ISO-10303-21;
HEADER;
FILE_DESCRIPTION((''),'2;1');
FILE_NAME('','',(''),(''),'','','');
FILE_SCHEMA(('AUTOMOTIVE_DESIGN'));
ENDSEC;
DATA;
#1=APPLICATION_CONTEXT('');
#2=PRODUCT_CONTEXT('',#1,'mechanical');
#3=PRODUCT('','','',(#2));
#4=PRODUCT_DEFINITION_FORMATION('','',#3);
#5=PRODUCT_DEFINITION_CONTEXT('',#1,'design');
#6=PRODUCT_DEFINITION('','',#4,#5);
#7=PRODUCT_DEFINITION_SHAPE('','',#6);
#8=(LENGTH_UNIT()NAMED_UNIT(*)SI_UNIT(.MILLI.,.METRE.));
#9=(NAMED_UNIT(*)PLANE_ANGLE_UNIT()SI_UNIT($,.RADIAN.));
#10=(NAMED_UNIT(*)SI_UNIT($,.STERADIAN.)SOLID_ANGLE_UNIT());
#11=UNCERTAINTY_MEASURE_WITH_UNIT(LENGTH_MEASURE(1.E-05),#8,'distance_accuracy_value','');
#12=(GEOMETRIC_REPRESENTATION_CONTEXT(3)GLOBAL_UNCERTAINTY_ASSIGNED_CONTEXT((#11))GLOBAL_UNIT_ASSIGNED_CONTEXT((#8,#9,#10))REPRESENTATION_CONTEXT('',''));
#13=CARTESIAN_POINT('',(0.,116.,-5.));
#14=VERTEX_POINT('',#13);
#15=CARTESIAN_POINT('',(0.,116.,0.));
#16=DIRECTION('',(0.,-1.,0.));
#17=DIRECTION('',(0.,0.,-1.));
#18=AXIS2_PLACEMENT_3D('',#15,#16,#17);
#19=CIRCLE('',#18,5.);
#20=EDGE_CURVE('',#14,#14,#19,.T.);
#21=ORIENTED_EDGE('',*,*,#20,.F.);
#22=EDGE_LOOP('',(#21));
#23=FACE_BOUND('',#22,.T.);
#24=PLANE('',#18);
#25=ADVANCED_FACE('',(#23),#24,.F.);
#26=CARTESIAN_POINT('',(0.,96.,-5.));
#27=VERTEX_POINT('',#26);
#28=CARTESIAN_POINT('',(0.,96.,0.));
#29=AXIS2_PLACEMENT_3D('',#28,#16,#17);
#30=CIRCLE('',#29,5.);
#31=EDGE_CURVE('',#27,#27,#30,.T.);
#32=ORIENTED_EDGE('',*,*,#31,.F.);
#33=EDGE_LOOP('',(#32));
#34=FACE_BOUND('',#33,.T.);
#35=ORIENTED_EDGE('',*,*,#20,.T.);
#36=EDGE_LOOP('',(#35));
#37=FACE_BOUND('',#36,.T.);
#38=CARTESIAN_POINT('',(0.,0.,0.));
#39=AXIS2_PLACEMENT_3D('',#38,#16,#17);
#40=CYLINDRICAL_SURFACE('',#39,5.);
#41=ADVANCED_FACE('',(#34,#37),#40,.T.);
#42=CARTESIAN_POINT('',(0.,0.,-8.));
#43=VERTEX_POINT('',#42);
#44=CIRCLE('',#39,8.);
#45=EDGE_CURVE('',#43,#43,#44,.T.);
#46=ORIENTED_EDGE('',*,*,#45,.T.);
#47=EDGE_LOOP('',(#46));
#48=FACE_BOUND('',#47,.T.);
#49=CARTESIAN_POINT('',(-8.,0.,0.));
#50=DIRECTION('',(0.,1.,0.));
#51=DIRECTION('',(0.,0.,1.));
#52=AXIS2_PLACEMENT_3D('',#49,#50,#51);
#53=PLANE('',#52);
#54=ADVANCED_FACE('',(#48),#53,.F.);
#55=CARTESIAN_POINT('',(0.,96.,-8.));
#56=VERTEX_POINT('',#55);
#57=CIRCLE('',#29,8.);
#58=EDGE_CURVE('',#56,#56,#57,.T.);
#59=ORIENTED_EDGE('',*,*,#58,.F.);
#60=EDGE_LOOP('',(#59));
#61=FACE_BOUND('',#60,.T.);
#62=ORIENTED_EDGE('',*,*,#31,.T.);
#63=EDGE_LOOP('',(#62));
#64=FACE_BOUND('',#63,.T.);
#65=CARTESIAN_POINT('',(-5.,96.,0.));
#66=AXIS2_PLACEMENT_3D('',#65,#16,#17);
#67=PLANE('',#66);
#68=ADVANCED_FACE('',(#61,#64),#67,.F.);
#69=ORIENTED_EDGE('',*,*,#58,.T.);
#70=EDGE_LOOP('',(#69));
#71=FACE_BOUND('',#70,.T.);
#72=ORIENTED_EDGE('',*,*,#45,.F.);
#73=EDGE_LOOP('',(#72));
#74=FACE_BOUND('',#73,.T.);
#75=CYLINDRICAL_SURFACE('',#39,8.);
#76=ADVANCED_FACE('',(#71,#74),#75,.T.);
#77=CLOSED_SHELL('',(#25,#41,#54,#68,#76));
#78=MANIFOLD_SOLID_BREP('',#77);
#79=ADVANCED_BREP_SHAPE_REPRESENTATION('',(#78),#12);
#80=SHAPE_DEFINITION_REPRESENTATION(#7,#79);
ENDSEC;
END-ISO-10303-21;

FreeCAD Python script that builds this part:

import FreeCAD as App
import Part
import Sketcher
Q = App.Units.Quantity

doc = App.newDocument("Part")
params = doc.addObject("Spreadsheet::Sheet", "Params")
for row, (alias, value) in enumerate([
    ("sketch1_width", "5 mm"),
    ("sketch1_width2", "3 mm"),
    ("sketch1_height", "116 mm"),
    ("sketch1_height2", "20 mm"),
    ("revolution_angle", "360 deg"),
], start=1):
    params.set(f"A{row}", alias)
    params.set(f"B{row}", "=" + value)
    params.setAlias(f"B{row}", alias)

body = doc.addObject("PartDesign::Body", "Body")

# Sketch on XY plane
sketch1 = doc.addObject("Sketcher::SketchObject", "Sketch")
body.addObject(sketch1)
sketch1.AttachmentSupport = (doc.XY_Plane, [""])
sketch1.MapMode = "FlatFace"
sketch1.addGeometry([
    Part.LineSegment(App.Vector(0, 0, 0), App.Vector(0, 116, 0)),  # 0
    Part.LineSegment(App.Vector(0, 116, 0), App.Vector(-5, 116, 0)),  # 1
    Part.LineSegment(App.Vector(-5, 116, 0), App.Vector(-5, 96, 0)),  # 2
    Part.LineSegment(App.Vector(-5, 96, 0), App.Vector(-8, 96, 0)),  # 3
    Part.LineSegment(App.Vector(-8, 96, 0), App.Vector(-8, 0, 0)),  # 4
    Part.LineSegment(App.Vector(-8, 0, 0), App.Vector(0, 0, 0)),  # 5
], False)
sketch1.addConstraint([
    Sketcher.Constraint("Coincident", 0, 2, 1, 1),
    Sketcher.Constraint("Coincident", 1, 2, 2, 1),
    Sketcher.Constraint("Coincident", 2, 2, 3, 1),
    Sketcher.Constraint("Coincident", 3, 2, 4, 1),
    Sketcher.Constraint("Coincident", 4, 2, 5, 1),
    Sketcher.Constraint("Coincident", 5, 2, 0, 1),
    Sketcher.Constraint("Vertical", 0),
    Sketcher.Constraint("Horizontal", 1),
    Sketcher.Constraint("Vertical", 2),
    Sketcher.Constraint("Horizontal", 3),
    Sketcher.Constraint("Vertical", 4),
    Sketcher.Constraint("Horizontal", 5),
    Sketcher.Constraint("Coincident", 5, 2, -1, 1),
    Sketcher.Constraint("DistanceX", 1, 2, 1, 1, Q("5 mm")),
    Sketcher.Constraint("DistanceX", 3, 2, 3, 1, Q("3 mm")),
    Sketcher.Constraint("DistanceY", 0, 1, 0, 2, Q("116 mm")),
    Sketcher.Constraint("DistanceY", 2, 2, 2, 1, Q("20 mm")),
])
sketch1.setExpression("Constraints[13]", "Params.sketch1_width")
sketch1.setExpression("Constraints[14]", "Params.sketch1_width2")
sketch1.setExpression("Constraints[15]", "Params.sketch1_height")
sketch1.setExpression("Constraints[16]", "Params.sketch1_height2")
revolution = doc.addObject("PartDesign::Revolution", "Revolution")
body.addObject(revolution)
revolution.Profile = sketch1
revolution.ReferenceAxis = (sketch1, ["V_Axis"])
revolution.setExpression("Angle", "Params.revolution_angle")

doc.recompute()
